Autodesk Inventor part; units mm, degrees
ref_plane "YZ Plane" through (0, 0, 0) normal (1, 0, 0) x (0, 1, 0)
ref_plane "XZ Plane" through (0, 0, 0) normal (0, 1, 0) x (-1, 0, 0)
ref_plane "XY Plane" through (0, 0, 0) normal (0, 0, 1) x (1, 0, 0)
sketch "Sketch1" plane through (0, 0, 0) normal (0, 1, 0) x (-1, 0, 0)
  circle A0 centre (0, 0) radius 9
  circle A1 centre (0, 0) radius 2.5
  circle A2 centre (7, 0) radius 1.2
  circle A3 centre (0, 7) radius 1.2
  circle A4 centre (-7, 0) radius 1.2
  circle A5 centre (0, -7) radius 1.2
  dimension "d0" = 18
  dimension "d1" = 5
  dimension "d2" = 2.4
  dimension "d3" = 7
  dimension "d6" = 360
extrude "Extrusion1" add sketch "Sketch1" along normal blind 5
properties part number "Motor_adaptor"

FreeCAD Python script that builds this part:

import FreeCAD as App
import Part
import Sketcher

V = App.Vector

doc = App.newDocument("Part")
body = doc.addObject("PartDesign::Body", "Body")

sketch1 = body.newObject("Sketcher::SketchObject", "Sketch")
sketch1.AttachmentSupport = (doc.getObject("XZ_Plane"), [""])
sketch1.MapMode = "FlatFace"
sketch1.addGeometry([
    Part.Circle(V(0, 0, 0), V(0, 0, 1), 9),
    Part.Circle(V(0, -7, 0), V(0, 0, 1), 1.2),
    Part.Circle(V(7, 0, 0), V(0, 0, 1), 1.2),
    Part.Circle(V(0, 0, 0), V(0, 0, 1), 2.5),
    Part.Circle(V(-7, 0, 0), V(0, 0, 1), 1.2),
    Part.Circle(V(0, 7, 0), V(0, 0, 1), 1.2),
], False)
sketch1.addConstraint([
    Sketcher.Constraint("Coincident", 0, 3, -1, 1),
    Sketcher.Constraint("Coincident", 3, 3, -1, 1),
    Sketcher.Constraint("Equal", 1, 2),
    Sketcher.Constraint("Equal", 2, 4),
    Sketcher.Constraint("Equal", 4, 5),
    Sketcher.Constraint("Symmetric", 2, 3, 4, 3, -1, 1),
    Sketcher.Constraint("Symmetric", 1, 3, 5, 3, -1, 1),
    Sketcher.Constraint("PointOnObject", 1, 3, -2),
    Sketcher.Constraint("PointOnObject", 2, 3, -1),
    Sketcher.Constraint("Diameter", 0, 18.0),
    Sketcher.Constraint("Diameter", 3, 5.0),
    Sketcher.Constraint("Diameter", 1, 2.4),
    Sketcher.Constraint("DistanceY", 1, 3, -1, 1, 7.0),
    Sketcher.Constraint("DistanceX", -1, 1, 2, 3, 7.0),
])
pad1 = body.newObject("PartDesign::Pad", "Pad")
pad1.Profile = sketch1
pad1.Length = 5
pad1.Reversed = True

doc.recompute()
